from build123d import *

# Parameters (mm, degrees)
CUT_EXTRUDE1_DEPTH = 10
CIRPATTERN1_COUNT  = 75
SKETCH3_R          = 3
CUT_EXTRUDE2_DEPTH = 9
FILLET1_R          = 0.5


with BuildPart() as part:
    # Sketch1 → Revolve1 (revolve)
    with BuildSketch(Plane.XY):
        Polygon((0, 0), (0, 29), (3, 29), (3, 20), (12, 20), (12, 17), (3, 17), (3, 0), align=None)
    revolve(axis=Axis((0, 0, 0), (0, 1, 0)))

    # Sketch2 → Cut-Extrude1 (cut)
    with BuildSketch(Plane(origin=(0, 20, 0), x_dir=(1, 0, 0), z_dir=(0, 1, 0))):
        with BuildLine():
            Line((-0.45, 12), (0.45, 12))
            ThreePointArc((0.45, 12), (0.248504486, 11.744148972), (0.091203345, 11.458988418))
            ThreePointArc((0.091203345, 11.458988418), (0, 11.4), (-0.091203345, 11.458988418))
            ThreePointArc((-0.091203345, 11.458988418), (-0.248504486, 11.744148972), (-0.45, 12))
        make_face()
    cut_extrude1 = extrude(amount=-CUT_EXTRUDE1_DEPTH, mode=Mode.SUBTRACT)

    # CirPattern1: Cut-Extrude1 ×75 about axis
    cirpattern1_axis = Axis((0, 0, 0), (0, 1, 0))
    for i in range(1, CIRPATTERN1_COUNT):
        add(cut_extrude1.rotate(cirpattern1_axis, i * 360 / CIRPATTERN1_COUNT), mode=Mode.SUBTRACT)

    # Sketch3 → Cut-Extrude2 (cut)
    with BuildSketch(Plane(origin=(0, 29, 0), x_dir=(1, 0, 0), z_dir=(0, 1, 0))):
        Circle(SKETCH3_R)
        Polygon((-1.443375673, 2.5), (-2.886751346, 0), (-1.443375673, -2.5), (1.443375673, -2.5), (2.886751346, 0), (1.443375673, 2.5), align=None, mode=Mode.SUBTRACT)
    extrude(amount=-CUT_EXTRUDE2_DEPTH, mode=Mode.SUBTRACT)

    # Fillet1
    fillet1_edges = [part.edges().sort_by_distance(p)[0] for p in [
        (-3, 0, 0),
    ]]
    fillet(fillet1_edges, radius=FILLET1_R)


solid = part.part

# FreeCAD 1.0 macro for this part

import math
import FreeCAD as App
import Part
import Sketcher

V = App.Vector
Q = App.Units.Quantity


def edges_at(feature, points):
    """Names of the edges that pass closest to the given points."""
    edges = feature.Shape.Edges
    near = lambda p: min(range(len(edges)), key=lambda i: edges[i].distToShape(Part.Vertex(*p))[0])
    return sorted({f"Edge{near(p) + 1}" for p in points})


def add_polygon(sketch, points):
    """Adds a closed chain of lines whose ends are joined by coincident constraints."""
    first, n = sketch.GeometryCount, len(points)
    for a, b in zip(points, points[1:] + points[:1]):
        sketch.addGeometry(Part.LineSegment(App.Vector(*a, 0), App.Vector(*b, 0)), False)
    for i in range(n):
        sketch.addConstraint(Sketcher.Constraint("Coincident", first + i, 2, first + (i + 1) % n, 1))

doc = App.newDocument("Part")
body = doc.addObject("PartDesign::Body", "Body")

# Sketch on XY plane
sketch1 = body.newObject("Sketcher::SketchObject", "Sketch")
sketch1.AttachmentSupport = (doc.getObject("XY_Plane"), [""])
sketch1.MapMode = "FlatFace"
add_polygon(sketch1, [(0, 29), (0, 0), (3, 0), (3, 17), (12, 17), (12, 20), (3, 20), (3, 29)])  # lines 0-7
sketch1.addConstraint(Sketcher.Constraint("Vertical", 0))
sketch1.addConstraint(Sketcher.Constraint("Horizontal", 1))
sketch1.addConstraint(Sketcher.Constraint("Vertical", 2))
sketch1.addConstraint(Sketcher.Constraint("Horizontal", 3))
sketch1.addConstraint(Sketcher.Constraint("Vertical", 4))
sketch1.addConstraint(Sketcher.Constraint("Horizontal", 5))
sketch1.addConstraint(Sketcher.Constraint("Vertical", 6))
sketch1.addConstraint(Sketcher.Constraint("Horizontal", 7))
sketch1.addConstraint(Sketcher.Constraint("Coincident", 0, 2, -1, 1))
sketch1.addConstraint(Sketcher.Constraint("Vertical", 2, 2, 5, 2))
sketch1.addConstraint(Sketcher.Constraint("Equal", 7, 4))
sketch1.addConstraint(Sketcher.Constraint("Equal", 5, 6))
sketch1.addConstraint(Sketcher.Constraint("DistanceX", 1, 1, 1, 2, 3.0))
sketch1.addConstraint(Sketcher.Constraint("DistanceX", 3, 1, 3, 2, 9.0))
sketch1.addConstraint(Sketcher.Constraint("DistanceY", 0, 2, 0, 1, 29.0))
revolution = body.newObject("PartDesign::Revolution", "Revolution")
revolution.Profile = sketch1
revolution.ReferenceAxis = (sketch1, ["V_Axis"])
revolution.Angle = 360

# Sketch on XZ plane
sketch2 = body.newObject("Sketcher::SketchObject", "Sketch001")
sketch2.AttachmentSupport = (doc.getObject("XZ_Plane"), [""])
sketch2.MapMode = "FlatFace"
sketch2.AttachmentOffset = App.Placement(V(0, 0, -20), App.Rotation())
sketch2.addGeometry(Part.LineSegment(V(0.45, -12, 0), V(-0.45, -12, 0)), False)
sketch2.addGeometry(Part.ArcOfCircle(Part.Circle(V(-1.91527, -10.638757, 0), V(0, 0, 1), 2), math.radians(-42.892237), math.radians(-24.212111)), False)
sketch2.addGeometry(Part.ArcOfCircle(Part.Circle(V(0, -11.5, 0), V(0, 0, 1), 0.1), math.radians(24.212111), math.radians(155.787889)), False)
sketch2.addGeometry(Part.ArcOfCircle(Part.Circle(V(1.91527, -10.638757, 0), V(0, 0, 1), 2), math.radians(-155.787889), math.radians(-137.107763)), False)
sketch2.addConstraint(Sketcher.Constraint("Coincident", 0, 2, 1, 1))
sketch2.addConstraint(Sketcher.Constraint("Tangent", 1, 2, 2, 2))
sketch2.addConstraint(Sketcher.Constraint("Tangent", 2, 1, 3, 1))
sketch2.addConstraint(Sketcher.Constraint("Coincident", 3, 2, 0, 1))
sketch2.addConstraint(Sketcher.Constraint("Horizontal", 0))
sketch2.addConstraint(Sketcher.Constraint("Equal", 1, 3))
sketch2.addConstraint(Sketcher.Constraint("Symmetric", 1, 3, 3, 3, -2))
sketch2.addConstraint(Sketcher.Constraint("Radius", 1, 2.0))
sketch2.addConstraint(Sketcher.Constraint("Radius", 2, 0.1))
sketch2.addConstraint(Sketcher.Constraint("DistanceX", 0, 2, 0, 1, 0.9))
sketch2.addConstraint(Sketcher.Constraint("DistanceY", 0, 2, -1, 1, 12.0))
sketch2.addConstraint(Sketcher.Constraint("DistanceY", 2, 3, -1, 1, 11.5))
pocket1 = body.newObject("PartDesign::Pocket", "Pocket")
pocket1.Profile = sketch2
pocket1.Length = 10
pocket1.Reversed = True
doc.recompute()

polarpattern = body.newObject("PartDesign::PolarPattern", "PolarPattern")
polarpattern.Originals = [pocket1]
polarpattern.Axis = (doc.getObject("Y_Axis"), [""])
polarpattern.Angle = 360
polarpattern.Occurrences = 75
body.Tip = polarpattern

# Sketch on XZ plane
sketch3 = body.newObject("Sketcher::SketchObject", "Sketch002")
sketch3.AttachmentSupport = (doc.getObject("XZ_Plane"), [""])
sketch3.MapMode = "FlatFace"
sketch3.AttachmentOffset = App.Placement(V(0, 0, -29), App.Rotation())
sketch3.addGeometry(Part.Circle(V(0, 0, 0), V(0, 0, 1), 3), False)  # 0
add_polygon(sketch3, [(-2.886751, 0), (-1.443376, -2.5), (1.443376, -2.5), (2.886751, 0), (1.443376, 2.5), (-1.443376, 2.5)])  # lines 1-6
sketch3.addConstraint(Sketcher.Constraint("Horizontal", 2))
sketch3.addConstraint(Sketcher.Constraint("Horizontal", 5))
sketch3.addConstraint(Sketcher.Constraint("Coincident", 0, 3, -1, 1))
sketch3.addConstraint(Sketcher.Constraint("Symmetric", 1, 2, 4, 2, -1, 1))
sketch3.addConstraint(Sketcher.Constraint("Symmetric", 3, 2, 6, 2, -1, 1))
sketch3.addConstraint(Sketcher.Constraint("PointOnObject", 3, 2, -1))
sketch3.addConstraint(Sketcher.Constraint("Parallel", 3, 6))
sketch3.addConstraint(Sketcher.Constraint("Vertical", 2, 2, 4, 2))
sketch3.addConstraint(Sketcher.Constraint("Diameter", 0, 6.0))
sketch3.addConstraint(Sketcher.Constraint("Angle", 1, Q("-60 deg")))
sketch3.addConstraint(Sketcher.Constraint("DistanceY", 2, 2, 4, 2, 5.0))
sketch3.addConstraint(Sketcher.Constraint("DistanceX", 2, 1, 2, 2, 2.886751))
pocket2 = body.newObject("PartDesign::Pocket", "Pocket001")
pocket2.Profile = sketch3
pocket2.Length = 9
pocket2.Reversed = True
doc.recompute()

fillet = body.newObject("PartDesign::Fillet", "Fillet")
fillet.Base = (pocket2, edges_at(pocket2, [(-3, 0, 0)]))
fillet.Radius = 0.5

doc.recompute()
